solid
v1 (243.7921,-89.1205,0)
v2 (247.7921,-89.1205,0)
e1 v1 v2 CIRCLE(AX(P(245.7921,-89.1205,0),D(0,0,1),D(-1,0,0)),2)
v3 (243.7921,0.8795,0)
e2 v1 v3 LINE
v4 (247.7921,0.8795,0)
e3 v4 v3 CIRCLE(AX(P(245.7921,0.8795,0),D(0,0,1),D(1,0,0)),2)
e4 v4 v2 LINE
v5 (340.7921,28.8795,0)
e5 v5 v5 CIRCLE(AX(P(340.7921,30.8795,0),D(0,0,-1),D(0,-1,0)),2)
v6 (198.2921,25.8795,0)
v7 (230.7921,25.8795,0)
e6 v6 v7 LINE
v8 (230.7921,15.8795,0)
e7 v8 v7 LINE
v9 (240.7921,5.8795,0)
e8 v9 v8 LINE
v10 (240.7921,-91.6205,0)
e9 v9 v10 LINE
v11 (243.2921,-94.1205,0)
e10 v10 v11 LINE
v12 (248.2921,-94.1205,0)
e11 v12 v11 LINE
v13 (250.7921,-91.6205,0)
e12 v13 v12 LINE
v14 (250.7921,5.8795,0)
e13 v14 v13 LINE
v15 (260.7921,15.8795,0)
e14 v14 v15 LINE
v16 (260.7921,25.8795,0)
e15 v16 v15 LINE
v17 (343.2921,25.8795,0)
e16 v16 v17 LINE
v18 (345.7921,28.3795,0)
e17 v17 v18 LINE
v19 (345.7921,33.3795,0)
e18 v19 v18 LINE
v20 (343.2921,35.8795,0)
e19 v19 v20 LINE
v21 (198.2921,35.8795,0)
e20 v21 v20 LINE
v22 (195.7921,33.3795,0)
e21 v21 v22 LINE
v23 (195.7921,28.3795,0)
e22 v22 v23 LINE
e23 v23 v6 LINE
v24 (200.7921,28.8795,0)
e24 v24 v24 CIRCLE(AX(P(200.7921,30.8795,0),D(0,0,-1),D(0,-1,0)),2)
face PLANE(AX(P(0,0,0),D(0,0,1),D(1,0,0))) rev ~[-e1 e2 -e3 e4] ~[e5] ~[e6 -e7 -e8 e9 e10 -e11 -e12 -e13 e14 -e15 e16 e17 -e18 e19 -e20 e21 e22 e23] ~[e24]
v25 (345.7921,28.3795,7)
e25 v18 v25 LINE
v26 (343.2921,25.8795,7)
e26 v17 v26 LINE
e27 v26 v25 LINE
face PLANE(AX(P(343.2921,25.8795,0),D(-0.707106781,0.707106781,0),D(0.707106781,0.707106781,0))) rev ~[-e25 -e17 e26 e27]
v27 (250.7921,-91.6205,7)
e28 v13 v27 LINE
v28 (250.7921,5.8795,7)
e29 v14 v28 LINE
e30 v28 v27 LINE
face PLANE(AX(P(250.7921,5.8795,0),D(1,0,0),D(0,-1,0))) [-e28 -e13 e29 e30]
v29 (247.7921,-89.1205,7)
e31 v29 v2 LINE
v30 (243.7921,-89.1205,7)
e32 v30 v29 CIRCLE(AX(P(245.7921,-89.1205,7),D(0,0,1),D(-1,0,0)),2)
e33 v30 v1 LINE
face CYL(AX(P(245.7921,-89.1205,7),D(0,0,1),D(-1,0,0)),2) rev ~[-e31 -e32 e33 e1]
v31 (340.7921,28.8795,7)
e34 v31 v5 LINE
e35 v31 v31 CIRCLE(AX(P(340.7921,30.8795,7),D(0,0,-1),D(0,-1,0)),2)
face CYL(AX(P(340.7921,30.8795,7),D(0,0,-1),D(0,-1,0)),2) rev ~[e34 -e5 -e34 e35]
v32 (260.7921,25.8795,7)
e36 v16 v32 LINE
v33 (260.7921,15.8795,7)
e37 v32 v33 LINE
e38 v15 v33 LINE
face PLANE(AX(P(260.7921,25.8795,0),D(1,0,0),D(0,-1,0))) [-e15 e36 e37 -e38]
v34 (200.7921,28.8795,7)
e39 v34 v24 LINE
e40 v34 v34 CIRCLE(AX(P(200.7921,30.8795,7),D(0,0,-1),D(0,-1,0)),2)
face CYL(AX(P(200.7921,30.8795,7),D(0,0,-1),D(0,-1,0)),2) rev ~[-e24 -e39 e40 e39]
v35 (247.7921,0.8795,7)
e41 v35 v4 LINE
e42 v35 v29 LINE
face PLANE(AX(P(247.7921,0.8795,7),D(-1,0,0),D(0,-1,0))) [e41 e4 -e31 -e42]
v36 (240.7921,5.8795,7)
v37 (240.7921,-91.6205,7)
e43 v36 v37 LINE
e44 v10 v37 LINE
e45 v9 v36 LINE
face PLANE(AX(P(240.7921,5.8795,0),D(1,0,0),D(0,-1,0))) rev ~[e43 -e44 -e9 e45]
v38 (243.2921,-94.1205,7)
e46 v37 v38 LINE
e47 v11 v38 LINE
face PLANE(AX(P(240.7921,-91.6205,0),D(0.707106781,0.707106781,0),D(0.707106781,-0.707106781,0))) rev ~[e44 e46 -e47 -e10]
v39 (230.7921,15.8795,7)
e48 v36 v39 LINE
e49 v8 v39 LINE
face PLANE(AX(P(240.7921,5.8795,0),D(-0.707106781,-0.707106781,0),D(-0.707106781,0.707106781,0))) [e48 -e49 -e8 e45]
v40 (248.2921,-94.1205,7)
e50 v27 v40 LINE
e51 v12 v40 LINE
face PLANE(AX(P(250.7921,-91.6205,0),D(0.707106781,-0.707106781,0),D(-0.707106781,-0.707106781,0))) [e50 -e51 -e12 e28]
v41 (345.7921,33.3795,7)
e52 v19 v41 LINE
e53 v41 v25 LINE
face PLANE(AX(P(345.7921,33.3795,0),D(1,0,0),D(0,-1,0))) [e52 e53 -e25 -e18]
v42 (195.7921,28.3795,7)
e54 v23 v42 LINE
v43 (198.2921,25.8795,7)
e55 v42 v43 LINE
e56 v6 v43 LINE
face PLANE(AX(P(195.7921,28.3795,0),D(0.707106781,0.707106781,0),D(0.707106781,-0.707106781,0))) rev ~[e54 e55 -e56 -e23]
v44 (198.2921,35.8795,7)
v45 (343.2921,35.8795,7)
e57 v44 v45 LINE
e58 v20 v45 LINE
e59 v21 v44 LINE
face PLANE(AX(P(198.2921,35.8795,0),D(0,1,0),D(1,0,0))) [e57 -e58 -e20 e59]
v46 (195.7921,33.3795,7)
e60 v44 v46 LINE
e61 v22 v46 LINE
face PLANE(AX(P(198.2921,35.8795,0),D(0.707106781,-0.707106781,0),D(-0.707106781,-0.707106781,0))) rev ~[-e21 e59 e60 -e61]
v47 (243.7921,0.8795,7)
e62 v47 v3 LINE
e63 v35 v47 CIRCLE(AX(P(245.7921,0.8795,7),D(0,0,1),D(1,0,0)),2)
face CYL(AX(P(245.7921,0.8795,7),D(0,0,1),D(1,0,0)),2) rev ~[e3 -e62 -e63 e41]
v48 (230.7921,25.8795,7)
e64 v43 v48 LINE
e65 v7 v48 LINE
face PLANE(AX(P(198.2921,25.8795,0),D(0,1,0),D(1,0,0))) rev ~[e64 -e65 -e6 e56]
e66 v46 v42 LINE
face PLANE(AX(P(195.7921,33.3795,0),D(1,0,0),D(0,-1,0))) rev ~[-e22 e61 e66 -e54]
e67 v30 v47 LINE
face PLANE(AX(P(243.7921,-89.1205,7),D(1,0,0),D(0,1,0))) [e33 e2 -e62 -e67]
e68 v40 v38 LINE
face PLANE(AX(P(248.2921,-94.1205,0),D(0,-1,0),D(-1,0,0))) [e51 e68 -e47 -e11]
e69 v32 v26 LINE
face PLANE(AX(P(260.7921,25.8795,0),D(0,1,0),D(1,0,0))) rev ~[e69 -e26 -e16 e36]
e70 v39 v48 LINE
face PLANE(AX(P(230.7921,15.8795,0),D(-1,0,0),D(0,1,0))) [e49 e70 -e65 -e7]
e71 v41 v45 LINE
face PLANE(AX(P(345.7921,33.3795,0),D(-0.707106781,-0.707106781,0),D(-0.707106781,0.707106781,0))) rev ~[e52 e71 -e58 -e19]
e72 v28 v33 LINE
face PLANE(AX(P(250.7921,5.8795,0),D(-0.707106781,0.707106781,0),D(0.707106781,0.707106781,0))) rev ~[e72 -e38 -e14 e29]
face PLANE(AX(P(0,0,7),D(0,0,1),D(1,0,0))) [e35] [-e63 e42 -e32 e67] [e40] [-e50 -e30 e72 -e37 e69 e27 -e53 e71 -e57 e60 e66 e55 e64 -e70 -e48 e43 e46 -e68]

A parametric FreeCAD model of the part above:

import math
import FreeCAD as App
import Part
import Sketcher
Q = App.Units.Quantity


def add_polygon(sketch, points):
    """Adds a closed chain of lines whose ends are joined by coincident constraints."""
    first, n = sketch.GeometryCount, len(points)
    for a, b in zip(points, points[1:] + points[:1]):
        sketch.addGeometry(Part.LineSegment(App.Vector(*a, 0), App.Vector(*b, 0)), False)
    for i in range(n):
        sketch.addConstraint(Sketcher.Constraint("Coincident", first + i, 2, first + (i + 1) % n, 1))

doc = App.newDocument("Part")
params = doc.addObject("Spreadsheet::Sheet", "Params")
for row, (alias, value) in enumerate([
    ("sketch1_width", "5 mm"),
    ("sketch1_height", "10 mm"),
    ("sketch1_width2", "145 mm"),
    ("pad1_length", "7 mm"),
    ("sketch2_diameter", "4 mm"),
    ("hole_diameter", "4 mm"),
    ("sketch3_radius", "2 mm"),
    ("sketch3_height", "90 mm"),
    ("pocket1_length", "7 mm"),
], start=1):
    params.set(f"A{row}", alias)
    params.set(f"B{row}", "=" + value)
    params.setAlias(f"B{row}", alias)

body = doc.addObject("PartDesign::Body", "Body")

sketch1 = doc.addObject("Sketcher::SketchObject", "Sketch")
body.addObject(sketch1)
sketch1.AttachmentSupport = (doc.XY_Plane, [""])
sketch1.MapMode = "FlatFace"
add_polygon(sketch1, [(343.2921, 35.8795), (198.2921, 35.8795), (195.7921, 33.3795), (195.7921, 28.3795), (198.2921, 25.8795), (230.7921, 25.8795), (230.7921, 15.8795), (240.7921, 5.8795), (240.7921, -91.6205), (243.2921, -94.1205), (248.2921, -94.1205), (250.7921, -91.6205), (250.7921, 5.8795), (260.7921, 15.8795), (260.7921, 25.8795), (343.2921, 25.8795), (345.7921, 28.3795), (345.7921, 33.3795)])
sketch1.addConstraint([
    Sketcher.Constraint("Horizontal", 0),
    Sketcher.Constraint("Vertical", 2),
    Sketcher.Constraint("Horizontal", 4),
    Sketcher.Constraint("Vertical", 5),
    Sketcher.Constraint("Vertical", 7),
    Sketcher.Constraint("Horizontal", 9),
    Sketcher.Constraint("Vertical", 11),
    Sketcher.Constraint("Vertical", 13),
    Sketcher.Constraint("Horizontal", 14),
    Sketcher.Constraint("Vertical", 16),
    Sketcher.Constraint("Perpendicular", 1, 3),
    Sketcher.Constraint("Parallel", 3, 6),
    Sketcher.Constraint("Parallel", 6, 8),
    Sketcher.Constraint("Perpendicular", 8, 10),
    Sketcher.Constraint("Parallel", 10, 12),
    Sketcher.Constraint("Parallel", 12, 15),
    Sketcher.Constraint("Perpendicular", 15, 17),
    Sketcher.Constraint("Horizontal", 7, 2, 10, 2),
    Sketcher.Constraint("Horizontal", 6, 2, 11, 2),
    Sketcher.Constraint("Horizontal", 5, 2, 12, 2),
    Sketcher.Constraint("Horizontal", 4, 2, 13, 2),
    Sketcher.Constraint("Horizontal", 2, 2, 15, 2),
    Sketcher.Constraint("Horizontal", 1, 2, 16, 2),
    Sketcher.Constraint("Vertical", 0, 2, 3, 2),
    Sketcher.Constraint("Vertical", 14, 2, 17, 2),
    Sketcher.Constraint("Equal", 9, 2),
    Sketcher.Constraint("Equal", 3, 8),
    Sketcher.Constraint("DistanceX", 9, 1, 9, 2, Q("5 mm")),
    Sketcher.Constraint("DistanceY", 5, 2, 5, 1, Q("10 mm")),
    Sketcher.Constraint("DistanceY", 3, 2, 0, 2, Q("10 mm")),
    Sketcher.Constraint("DistanceX", 5, 2, 6, 2, Q("10 mm")),
    Sketcher.Constraint("DistanceX", 2, 2, 6, 2, Q("45 mm")),
    Sketcher.Constraint("DistanceY", 7, 2, 2, 2, Q("120 mm")),
    Sketcher.Constraint("DistanceX", 0, 2, 0, 1, Q("145 mm")),
    Sketcher.Constraint("DistanceX", -1, 1, 0, 2, Q("198.292 mm")),
    Sketcher.Constraint("DistanceY", -1, 1, 0, 2, Q("35.8795 mm")),
])
sketch1.setExpression("Constraints[45]", "Params.sketch1_width")
sketch1.setExpression("Constraints[46]", "Params.sketch1_height")
sketch1.setExpression("Constraints[51]", "Params.sketch1_width2")
pad1 = doc.addObject("PartDesign::Pad", "Pad")
body.addObject(pad1)
pad1.Profile = sketch1
pad1.setExpression("Length", "Params.pad1_length")

sketch2 = doc.addObject("Sketcher::SketchObject", "Sketch001")
body.addObject(sketch2)
sketch2.AttachmentSupport = (doc.XY_Plane, [""])
sketch2.MapMode = "FlatFace"
sketch2.AttachmentOffset = App.Placement(App.Vector(0, 0, 7), App.Rotation())
sketch2.addGeometry([
    Part.Circle(App.Vector(200.7921, 30.8795, 0), App.Vector(0, 0, 1), 2),
    Part.Circle(App.Vector(340.7921, 30.8795, 0), App.Vector(0, 0, 1), 2),
], False)
sketch2.addConstraint([
    Sketcher.Constraint("Equal", 0, 1),
    Sketcher.Constraint("Horizontal", 0, 3, 1, 3),
    Sketcher.Constraint("Diameter", 0, Q("4 mm")),
    Sketcher.Constraint("DistanceX", 0, 3, 1, 3, Q("140 mm")),
    Sketcher.Constraint("DistanceX", -1, 1, 0, 3, Q("200.792 mm")),
    Sketcher.Constraint("DistanceY", -1, 1, 0, 3, Q("30.8795 mm")),
])
sketch2.setExpression("Constraints[2]", "Params.sketch2_diameter")
doc.recompute()
hole = doc.addObject("PartDesign::Hole", "Hole")
body.addObject(hole)
hole.Profile = sketch2
hole.ThreadType = "None"
hole.setExpression("Diameter", "Params.hole_diameter")
hole.DepthType = "ThroughAll"

sketch3 = doc.addObject("Sketcher::SketchObject", "Sketch002")
body.addObject(sketch3)
sketch3.AttachmentSupport = (doc.XY_Plane, [""])
sketch3.MapMode = "FlatFace"
sketch3.AttachmentOffset = App.Placement(App.Vector(0, 0, 7), App.Rotation())
sketch3.addGeometry([
    Part.LineSegment(App.Vector(243.7921, 0.8795, 0), App.Vector(243.7921, -89.1205, 0)),
    Part.ArcOfCircle(Part.Circle(App.Vector(245.7921, -89.1205, 0), App.Vector(0, 0, 1), 2), math.radians(180), math.radians(360)),
    Part.LineSegment(App.Vector(247.7921, -89.1205, 0), App.Vector(247.7921, 0.8795, 0)),
    Part.ArcOfCircle(Part.Circle(App.Vector(245.7921, 0.8795, 0), App.Vector(0, 0, 1), 2), math.radians(0), math.radians(180)),
], False)
sketch3.addConstraint([
    Sketcher.Constraint("Tangent", 0, 2, 1, 1),
    Sketcher.Constraint("Tangent", 1, 2, 2, 1),
    Sketcher.Constraint("Tangent", 2, 2, 3, 1),
    Sketcher.Constraint("Tangent", 3, 2, 0, 1),
    Sketcher.Constraint("Vertical", 0),
    Sketcher.Constraint("Vertical", 2),
    Sketcher.Constraint("Radius", 1, Q("2 mm")),
    Sketcher.Constraint("DistanceY", 0, 2, 0, 1, Q("90 mm")),
    Sketcher.Constraint("DistanceX", -1, 1, 1, 3, Q("245.792 mm")),
    Sketcher.Constraint("DistanceY", 1, 3, -1, 1, Q("89.1205 mm")),
])
sketch3.setExpression("Constraints[6]", "Params.sketch3_radius")
sketch3.setExpression("Constraints[7]", "Params.sketch3_height")
pocket1 = doc.addObject("PartDesign::Pocket", "Pocket")
body.addObject(pocket1)
pocket1.Profile = sketch3
pocket1.setExpression("Length", "Params.pocket1_length")

doc.recompute()
